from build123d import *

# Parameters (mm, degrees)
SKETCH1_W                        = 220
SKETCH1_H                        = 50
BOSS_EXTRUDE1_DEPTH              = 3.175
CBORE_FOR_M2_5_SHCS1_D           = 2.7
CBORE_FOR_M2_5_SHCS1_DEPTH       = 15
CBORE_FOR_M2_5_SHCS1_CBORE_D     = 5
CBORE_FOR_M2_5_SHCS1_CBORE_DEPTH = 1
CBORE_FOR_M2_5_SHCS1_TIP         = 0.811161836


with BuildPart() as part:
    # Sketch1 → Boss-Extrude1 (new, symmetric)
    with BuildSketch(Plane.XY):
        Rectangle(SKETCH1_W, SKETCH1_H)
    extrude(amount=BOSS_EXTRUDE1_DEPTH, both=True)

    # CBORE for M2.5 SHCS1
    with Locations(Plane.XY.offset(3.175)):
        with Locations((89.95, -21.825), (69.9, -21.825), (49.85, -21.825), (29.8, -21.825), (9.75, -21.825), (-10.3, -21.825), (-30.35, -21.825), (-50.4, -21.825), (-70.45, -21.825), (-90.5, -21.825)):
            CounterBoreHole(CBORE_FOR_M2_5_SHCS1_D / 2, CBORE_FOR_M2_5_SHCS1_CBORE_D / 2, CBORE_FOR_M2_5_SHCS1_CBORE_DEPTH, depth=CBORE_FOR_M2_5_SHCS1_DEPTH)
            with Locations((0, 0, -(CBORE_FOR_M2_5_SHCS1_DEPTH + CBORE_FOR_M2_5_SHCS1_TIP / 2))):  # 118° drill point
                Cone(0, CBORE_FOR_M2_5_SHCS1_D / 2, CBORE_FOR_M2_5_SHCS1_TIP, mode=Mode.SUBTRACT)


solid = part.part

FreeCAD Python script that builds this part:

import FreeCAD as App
import Part
import Sketcher

V = App.Vector


def add_polygon(sketch, points):
    """Adds a closed chain of lines whose ends are joined by coincident constraints."""
    first, n = sketch.GeometryCount, len(points)
    for a, b in zip(points, points[1:] + points[:1]):
        sketch.addGeometry(Part.LineSegment(App.Vector(*a, 0), App.Vector(*b, 0)), False)
    for i in range(n):
        sketch.addConstraint(Sketcher.Constraint("Coincident", first + i, 2, first + (i + 1) % n, 1))

doc = App.newDocument("Part")
params = doc.addObject("Spreadsheet::Sheet", "Params")
for row, (alias, value) in enumerate([
    ("sketch1_width", "220 mm"),
    ("sketch1_height", "50 mm"),
    ("pad1_length", "6.35 mm"),
    ("sketch2_diameter", "2.7 mm"),
    ("hole_diameter", "2.7 mm"),
    ("hole_depth", "15 mm"),
    ("hole_cbore_diameter", "5 mm"),
    ("hole_cbore_depth", "1 mm"),
], start=1):
    params.set(f"A{row}", alias)
    params.set(f"B{row}", "=" + value)
    params.setAlias(f"B{row}", alias)

body = doc.addObject("PartDesign::Body", "Body")

# Sketch on XY plane
sketch1 = doc.addObject("Sketcher::SketchObject", "Sketch")
body.addObject(sketch1)
sketch1.AttachmentSupport = (doc.XY_Plane, [""])
sketch1.MapMode = "FlatFace"
add_polygon(sketch1, [(-110, 25), (-110, -25), (110, -25), (110, 25)])  # lines 0-3
sketch1.addConstraint([
    Sketcher.Constraint("Vertical", 0),
    Sketcher.Constraint("Horizontal", 1),
    Sketcher.Constraint("Vertical", 2),
    Sketcher.Constraint("Horizontal", 3),
    Sketcher.Constraint("Symmetric", 0, 2, 2, 2, -1, 1),
    Sketcher.Constraint("DistanceX", 1, 1, 1, 2, 220.0),
    Sketcher.Constraint("DistanceY", 0, 2, 0, 1, 50.0),
])
sketch1.setExpression("Constraints[9]", "Params.sketch1_width")
sketch1.setExpression("Constraints[10]", "Params.sketch1_height")
pad1 = doc.addObject("PartDesign::Pad", "Pad")
body.addObject(pad1)
pad1.Profile = sketch1
pad1.setExpression("Length", "Params.pad1_length")
pad1.Midplane = True

# Sketch on XY plane
sketch2 = doc.addObject("Sketcher::SketchObject", "Sketch001")
body.addObject(sketch2)
sketch2.AttachmentSupport = (doc.XY_Plane, [""])
sketch2.MapMode = "FlatFace"
sketch2.AttachmentOffset = App.Placement(V(0, 0, 3.175), App.Rotation())
sketch2.addGeometry([
    Part.Circle(V(89.95, -21.825, 0), V(0, 0, 1), 1.35),  # 0
    Part.Circle(V(69.9, -21.825, 0), V(0, 0, 1), 1.35),  # 1
    Part.Circle(V(49.85, -21.825, 0), V(0, 0, 1), 1.35),  # 2
    Part.Circle(V(29.8, -21.825, 0), V(0, 0, 1), 1.35),  # 3
    Part.Circle(V(9.75, -21.825, 0), V(0, 0, 1), 1.35),  # 4
    Part.Circle(V(-10.3, -21.825, 0), V(0, 0, 1), 1.35),  # 5
    Part.Circle(V(-30.35, -21.825, 0), V(0, 0, 1), 1.35),  # 6
    Part.Circle(V(-50.4, -21.825, 0), V(0, 0, 1), 1.35),  # 7
    Part.Circle(V(-70.45, -21.825, 0), V(0, 0, 1), 1.35),  # 8
    Part.Circle(V(-90.5, -21.825, 0), V(0, 0, 1), 1.35),  # 9
], False)
sketch2.addConstraint([
    Sketcher.Constraint("Equal", 0, 1),
    Sketcher.Constraint("Equal", 1, 2),
    Sketcher.Constraint("Equal", 2, 3),
    Sketcher.Constraint("Equal", 3, 4),
    Sketcher.Constraint("Equal", 4, 5),
    Sketcher.Constraint("Equal", 5, 6),
    Sketcher.Constraint("Equal", 6, 7),
    Sketcher.Constraint("Equal", 7, 8),
    Sketcher.Constraint("Equal", 8, 9),
    Sketcher.Constraint("Horizontal", 0, 3, 1, 3),
    Sketcher.Constraint("Horizontal", 1, 3, 2, 3),
    Sketcher.Constraint("Horizontal", 2, 3, 3, 3),
    Sketcher.Constraint("Horizontal", 3, 3, 4, 3),
    Sketcher.Constraint("Horizontal", 4, 3, 5, 3),
    Sketcher.Constraint("Horizontal", 5, 3, 6, 3),
    Sketcher.Constraint("Horizontal", 6, 3, 7, 3),
    Sketcher.Constraint("Horizontal", 7, 3, 8, 3),
    Sketcher.Constraint("Horizontal", 8, 3, 9, 3),
    Sketcher.Constraint("Diameter", 0, 2.7),
    Sketcher.Constraint("DistanceX", -1, 1, 1, 3, 69.9),
    Sketcher.Constraint("DistanceX", -1, 1, 3, 3, 29.8),
    Sketcher.Constraint("DistanceX", 5, 3, -1, 1, 10.3),
    Sketcher.Constraint("DistanceX", 7, 3, -1, 1, 50.4),
    Sketcher.Constraint("DistanceX", 9, 3, -1, 1, 90.5),
    Sketcher.Constraint("DistanceX", 2, 3, 0, 3, 40.1),
    Sketcher.Constraint("DistanceX", 4, 3, 2, 3, 40.1),
    Sketcher.Constraint("DistanceX", 6, 3, 4, 3, 40.1),
    Sketcher.Constraint("DistanceX", 8, 3, 6, 3, 40.1),
    Sketcher.Constraint("DistanceX", -1, 1, 0, 3, 89.95),
    Sketcher.Constraint("DistanceY", 0, 3, -1, 1, 21.825),
])
sketch2.setExpression("Constraints[18]", "Params.sketch2_diameter")
doc.recompute()
hole = doc.addObject("PartDesign::Hole", "Hole")
body.addObject(hole)
hole.Profile = sketch2
hole.ThreadType = "None"
hole.setExpression("Diameter", "Params.hole_diameter")
hole.DepthType = "Dimension"
hole.setExpression("Depth", "Params.hole_depth")
hole.DrillPoint = "Angled"
hole.DrillPointAngle = 118
hole.HoleCutType = "Counterbore"
hole.setExpression("HoleCutDiameter", "Params.hole_cbore_diameter")
hole.setExpression("HoleCutDepth", "Params.hole_cbore_depth")

doc.recompute()
